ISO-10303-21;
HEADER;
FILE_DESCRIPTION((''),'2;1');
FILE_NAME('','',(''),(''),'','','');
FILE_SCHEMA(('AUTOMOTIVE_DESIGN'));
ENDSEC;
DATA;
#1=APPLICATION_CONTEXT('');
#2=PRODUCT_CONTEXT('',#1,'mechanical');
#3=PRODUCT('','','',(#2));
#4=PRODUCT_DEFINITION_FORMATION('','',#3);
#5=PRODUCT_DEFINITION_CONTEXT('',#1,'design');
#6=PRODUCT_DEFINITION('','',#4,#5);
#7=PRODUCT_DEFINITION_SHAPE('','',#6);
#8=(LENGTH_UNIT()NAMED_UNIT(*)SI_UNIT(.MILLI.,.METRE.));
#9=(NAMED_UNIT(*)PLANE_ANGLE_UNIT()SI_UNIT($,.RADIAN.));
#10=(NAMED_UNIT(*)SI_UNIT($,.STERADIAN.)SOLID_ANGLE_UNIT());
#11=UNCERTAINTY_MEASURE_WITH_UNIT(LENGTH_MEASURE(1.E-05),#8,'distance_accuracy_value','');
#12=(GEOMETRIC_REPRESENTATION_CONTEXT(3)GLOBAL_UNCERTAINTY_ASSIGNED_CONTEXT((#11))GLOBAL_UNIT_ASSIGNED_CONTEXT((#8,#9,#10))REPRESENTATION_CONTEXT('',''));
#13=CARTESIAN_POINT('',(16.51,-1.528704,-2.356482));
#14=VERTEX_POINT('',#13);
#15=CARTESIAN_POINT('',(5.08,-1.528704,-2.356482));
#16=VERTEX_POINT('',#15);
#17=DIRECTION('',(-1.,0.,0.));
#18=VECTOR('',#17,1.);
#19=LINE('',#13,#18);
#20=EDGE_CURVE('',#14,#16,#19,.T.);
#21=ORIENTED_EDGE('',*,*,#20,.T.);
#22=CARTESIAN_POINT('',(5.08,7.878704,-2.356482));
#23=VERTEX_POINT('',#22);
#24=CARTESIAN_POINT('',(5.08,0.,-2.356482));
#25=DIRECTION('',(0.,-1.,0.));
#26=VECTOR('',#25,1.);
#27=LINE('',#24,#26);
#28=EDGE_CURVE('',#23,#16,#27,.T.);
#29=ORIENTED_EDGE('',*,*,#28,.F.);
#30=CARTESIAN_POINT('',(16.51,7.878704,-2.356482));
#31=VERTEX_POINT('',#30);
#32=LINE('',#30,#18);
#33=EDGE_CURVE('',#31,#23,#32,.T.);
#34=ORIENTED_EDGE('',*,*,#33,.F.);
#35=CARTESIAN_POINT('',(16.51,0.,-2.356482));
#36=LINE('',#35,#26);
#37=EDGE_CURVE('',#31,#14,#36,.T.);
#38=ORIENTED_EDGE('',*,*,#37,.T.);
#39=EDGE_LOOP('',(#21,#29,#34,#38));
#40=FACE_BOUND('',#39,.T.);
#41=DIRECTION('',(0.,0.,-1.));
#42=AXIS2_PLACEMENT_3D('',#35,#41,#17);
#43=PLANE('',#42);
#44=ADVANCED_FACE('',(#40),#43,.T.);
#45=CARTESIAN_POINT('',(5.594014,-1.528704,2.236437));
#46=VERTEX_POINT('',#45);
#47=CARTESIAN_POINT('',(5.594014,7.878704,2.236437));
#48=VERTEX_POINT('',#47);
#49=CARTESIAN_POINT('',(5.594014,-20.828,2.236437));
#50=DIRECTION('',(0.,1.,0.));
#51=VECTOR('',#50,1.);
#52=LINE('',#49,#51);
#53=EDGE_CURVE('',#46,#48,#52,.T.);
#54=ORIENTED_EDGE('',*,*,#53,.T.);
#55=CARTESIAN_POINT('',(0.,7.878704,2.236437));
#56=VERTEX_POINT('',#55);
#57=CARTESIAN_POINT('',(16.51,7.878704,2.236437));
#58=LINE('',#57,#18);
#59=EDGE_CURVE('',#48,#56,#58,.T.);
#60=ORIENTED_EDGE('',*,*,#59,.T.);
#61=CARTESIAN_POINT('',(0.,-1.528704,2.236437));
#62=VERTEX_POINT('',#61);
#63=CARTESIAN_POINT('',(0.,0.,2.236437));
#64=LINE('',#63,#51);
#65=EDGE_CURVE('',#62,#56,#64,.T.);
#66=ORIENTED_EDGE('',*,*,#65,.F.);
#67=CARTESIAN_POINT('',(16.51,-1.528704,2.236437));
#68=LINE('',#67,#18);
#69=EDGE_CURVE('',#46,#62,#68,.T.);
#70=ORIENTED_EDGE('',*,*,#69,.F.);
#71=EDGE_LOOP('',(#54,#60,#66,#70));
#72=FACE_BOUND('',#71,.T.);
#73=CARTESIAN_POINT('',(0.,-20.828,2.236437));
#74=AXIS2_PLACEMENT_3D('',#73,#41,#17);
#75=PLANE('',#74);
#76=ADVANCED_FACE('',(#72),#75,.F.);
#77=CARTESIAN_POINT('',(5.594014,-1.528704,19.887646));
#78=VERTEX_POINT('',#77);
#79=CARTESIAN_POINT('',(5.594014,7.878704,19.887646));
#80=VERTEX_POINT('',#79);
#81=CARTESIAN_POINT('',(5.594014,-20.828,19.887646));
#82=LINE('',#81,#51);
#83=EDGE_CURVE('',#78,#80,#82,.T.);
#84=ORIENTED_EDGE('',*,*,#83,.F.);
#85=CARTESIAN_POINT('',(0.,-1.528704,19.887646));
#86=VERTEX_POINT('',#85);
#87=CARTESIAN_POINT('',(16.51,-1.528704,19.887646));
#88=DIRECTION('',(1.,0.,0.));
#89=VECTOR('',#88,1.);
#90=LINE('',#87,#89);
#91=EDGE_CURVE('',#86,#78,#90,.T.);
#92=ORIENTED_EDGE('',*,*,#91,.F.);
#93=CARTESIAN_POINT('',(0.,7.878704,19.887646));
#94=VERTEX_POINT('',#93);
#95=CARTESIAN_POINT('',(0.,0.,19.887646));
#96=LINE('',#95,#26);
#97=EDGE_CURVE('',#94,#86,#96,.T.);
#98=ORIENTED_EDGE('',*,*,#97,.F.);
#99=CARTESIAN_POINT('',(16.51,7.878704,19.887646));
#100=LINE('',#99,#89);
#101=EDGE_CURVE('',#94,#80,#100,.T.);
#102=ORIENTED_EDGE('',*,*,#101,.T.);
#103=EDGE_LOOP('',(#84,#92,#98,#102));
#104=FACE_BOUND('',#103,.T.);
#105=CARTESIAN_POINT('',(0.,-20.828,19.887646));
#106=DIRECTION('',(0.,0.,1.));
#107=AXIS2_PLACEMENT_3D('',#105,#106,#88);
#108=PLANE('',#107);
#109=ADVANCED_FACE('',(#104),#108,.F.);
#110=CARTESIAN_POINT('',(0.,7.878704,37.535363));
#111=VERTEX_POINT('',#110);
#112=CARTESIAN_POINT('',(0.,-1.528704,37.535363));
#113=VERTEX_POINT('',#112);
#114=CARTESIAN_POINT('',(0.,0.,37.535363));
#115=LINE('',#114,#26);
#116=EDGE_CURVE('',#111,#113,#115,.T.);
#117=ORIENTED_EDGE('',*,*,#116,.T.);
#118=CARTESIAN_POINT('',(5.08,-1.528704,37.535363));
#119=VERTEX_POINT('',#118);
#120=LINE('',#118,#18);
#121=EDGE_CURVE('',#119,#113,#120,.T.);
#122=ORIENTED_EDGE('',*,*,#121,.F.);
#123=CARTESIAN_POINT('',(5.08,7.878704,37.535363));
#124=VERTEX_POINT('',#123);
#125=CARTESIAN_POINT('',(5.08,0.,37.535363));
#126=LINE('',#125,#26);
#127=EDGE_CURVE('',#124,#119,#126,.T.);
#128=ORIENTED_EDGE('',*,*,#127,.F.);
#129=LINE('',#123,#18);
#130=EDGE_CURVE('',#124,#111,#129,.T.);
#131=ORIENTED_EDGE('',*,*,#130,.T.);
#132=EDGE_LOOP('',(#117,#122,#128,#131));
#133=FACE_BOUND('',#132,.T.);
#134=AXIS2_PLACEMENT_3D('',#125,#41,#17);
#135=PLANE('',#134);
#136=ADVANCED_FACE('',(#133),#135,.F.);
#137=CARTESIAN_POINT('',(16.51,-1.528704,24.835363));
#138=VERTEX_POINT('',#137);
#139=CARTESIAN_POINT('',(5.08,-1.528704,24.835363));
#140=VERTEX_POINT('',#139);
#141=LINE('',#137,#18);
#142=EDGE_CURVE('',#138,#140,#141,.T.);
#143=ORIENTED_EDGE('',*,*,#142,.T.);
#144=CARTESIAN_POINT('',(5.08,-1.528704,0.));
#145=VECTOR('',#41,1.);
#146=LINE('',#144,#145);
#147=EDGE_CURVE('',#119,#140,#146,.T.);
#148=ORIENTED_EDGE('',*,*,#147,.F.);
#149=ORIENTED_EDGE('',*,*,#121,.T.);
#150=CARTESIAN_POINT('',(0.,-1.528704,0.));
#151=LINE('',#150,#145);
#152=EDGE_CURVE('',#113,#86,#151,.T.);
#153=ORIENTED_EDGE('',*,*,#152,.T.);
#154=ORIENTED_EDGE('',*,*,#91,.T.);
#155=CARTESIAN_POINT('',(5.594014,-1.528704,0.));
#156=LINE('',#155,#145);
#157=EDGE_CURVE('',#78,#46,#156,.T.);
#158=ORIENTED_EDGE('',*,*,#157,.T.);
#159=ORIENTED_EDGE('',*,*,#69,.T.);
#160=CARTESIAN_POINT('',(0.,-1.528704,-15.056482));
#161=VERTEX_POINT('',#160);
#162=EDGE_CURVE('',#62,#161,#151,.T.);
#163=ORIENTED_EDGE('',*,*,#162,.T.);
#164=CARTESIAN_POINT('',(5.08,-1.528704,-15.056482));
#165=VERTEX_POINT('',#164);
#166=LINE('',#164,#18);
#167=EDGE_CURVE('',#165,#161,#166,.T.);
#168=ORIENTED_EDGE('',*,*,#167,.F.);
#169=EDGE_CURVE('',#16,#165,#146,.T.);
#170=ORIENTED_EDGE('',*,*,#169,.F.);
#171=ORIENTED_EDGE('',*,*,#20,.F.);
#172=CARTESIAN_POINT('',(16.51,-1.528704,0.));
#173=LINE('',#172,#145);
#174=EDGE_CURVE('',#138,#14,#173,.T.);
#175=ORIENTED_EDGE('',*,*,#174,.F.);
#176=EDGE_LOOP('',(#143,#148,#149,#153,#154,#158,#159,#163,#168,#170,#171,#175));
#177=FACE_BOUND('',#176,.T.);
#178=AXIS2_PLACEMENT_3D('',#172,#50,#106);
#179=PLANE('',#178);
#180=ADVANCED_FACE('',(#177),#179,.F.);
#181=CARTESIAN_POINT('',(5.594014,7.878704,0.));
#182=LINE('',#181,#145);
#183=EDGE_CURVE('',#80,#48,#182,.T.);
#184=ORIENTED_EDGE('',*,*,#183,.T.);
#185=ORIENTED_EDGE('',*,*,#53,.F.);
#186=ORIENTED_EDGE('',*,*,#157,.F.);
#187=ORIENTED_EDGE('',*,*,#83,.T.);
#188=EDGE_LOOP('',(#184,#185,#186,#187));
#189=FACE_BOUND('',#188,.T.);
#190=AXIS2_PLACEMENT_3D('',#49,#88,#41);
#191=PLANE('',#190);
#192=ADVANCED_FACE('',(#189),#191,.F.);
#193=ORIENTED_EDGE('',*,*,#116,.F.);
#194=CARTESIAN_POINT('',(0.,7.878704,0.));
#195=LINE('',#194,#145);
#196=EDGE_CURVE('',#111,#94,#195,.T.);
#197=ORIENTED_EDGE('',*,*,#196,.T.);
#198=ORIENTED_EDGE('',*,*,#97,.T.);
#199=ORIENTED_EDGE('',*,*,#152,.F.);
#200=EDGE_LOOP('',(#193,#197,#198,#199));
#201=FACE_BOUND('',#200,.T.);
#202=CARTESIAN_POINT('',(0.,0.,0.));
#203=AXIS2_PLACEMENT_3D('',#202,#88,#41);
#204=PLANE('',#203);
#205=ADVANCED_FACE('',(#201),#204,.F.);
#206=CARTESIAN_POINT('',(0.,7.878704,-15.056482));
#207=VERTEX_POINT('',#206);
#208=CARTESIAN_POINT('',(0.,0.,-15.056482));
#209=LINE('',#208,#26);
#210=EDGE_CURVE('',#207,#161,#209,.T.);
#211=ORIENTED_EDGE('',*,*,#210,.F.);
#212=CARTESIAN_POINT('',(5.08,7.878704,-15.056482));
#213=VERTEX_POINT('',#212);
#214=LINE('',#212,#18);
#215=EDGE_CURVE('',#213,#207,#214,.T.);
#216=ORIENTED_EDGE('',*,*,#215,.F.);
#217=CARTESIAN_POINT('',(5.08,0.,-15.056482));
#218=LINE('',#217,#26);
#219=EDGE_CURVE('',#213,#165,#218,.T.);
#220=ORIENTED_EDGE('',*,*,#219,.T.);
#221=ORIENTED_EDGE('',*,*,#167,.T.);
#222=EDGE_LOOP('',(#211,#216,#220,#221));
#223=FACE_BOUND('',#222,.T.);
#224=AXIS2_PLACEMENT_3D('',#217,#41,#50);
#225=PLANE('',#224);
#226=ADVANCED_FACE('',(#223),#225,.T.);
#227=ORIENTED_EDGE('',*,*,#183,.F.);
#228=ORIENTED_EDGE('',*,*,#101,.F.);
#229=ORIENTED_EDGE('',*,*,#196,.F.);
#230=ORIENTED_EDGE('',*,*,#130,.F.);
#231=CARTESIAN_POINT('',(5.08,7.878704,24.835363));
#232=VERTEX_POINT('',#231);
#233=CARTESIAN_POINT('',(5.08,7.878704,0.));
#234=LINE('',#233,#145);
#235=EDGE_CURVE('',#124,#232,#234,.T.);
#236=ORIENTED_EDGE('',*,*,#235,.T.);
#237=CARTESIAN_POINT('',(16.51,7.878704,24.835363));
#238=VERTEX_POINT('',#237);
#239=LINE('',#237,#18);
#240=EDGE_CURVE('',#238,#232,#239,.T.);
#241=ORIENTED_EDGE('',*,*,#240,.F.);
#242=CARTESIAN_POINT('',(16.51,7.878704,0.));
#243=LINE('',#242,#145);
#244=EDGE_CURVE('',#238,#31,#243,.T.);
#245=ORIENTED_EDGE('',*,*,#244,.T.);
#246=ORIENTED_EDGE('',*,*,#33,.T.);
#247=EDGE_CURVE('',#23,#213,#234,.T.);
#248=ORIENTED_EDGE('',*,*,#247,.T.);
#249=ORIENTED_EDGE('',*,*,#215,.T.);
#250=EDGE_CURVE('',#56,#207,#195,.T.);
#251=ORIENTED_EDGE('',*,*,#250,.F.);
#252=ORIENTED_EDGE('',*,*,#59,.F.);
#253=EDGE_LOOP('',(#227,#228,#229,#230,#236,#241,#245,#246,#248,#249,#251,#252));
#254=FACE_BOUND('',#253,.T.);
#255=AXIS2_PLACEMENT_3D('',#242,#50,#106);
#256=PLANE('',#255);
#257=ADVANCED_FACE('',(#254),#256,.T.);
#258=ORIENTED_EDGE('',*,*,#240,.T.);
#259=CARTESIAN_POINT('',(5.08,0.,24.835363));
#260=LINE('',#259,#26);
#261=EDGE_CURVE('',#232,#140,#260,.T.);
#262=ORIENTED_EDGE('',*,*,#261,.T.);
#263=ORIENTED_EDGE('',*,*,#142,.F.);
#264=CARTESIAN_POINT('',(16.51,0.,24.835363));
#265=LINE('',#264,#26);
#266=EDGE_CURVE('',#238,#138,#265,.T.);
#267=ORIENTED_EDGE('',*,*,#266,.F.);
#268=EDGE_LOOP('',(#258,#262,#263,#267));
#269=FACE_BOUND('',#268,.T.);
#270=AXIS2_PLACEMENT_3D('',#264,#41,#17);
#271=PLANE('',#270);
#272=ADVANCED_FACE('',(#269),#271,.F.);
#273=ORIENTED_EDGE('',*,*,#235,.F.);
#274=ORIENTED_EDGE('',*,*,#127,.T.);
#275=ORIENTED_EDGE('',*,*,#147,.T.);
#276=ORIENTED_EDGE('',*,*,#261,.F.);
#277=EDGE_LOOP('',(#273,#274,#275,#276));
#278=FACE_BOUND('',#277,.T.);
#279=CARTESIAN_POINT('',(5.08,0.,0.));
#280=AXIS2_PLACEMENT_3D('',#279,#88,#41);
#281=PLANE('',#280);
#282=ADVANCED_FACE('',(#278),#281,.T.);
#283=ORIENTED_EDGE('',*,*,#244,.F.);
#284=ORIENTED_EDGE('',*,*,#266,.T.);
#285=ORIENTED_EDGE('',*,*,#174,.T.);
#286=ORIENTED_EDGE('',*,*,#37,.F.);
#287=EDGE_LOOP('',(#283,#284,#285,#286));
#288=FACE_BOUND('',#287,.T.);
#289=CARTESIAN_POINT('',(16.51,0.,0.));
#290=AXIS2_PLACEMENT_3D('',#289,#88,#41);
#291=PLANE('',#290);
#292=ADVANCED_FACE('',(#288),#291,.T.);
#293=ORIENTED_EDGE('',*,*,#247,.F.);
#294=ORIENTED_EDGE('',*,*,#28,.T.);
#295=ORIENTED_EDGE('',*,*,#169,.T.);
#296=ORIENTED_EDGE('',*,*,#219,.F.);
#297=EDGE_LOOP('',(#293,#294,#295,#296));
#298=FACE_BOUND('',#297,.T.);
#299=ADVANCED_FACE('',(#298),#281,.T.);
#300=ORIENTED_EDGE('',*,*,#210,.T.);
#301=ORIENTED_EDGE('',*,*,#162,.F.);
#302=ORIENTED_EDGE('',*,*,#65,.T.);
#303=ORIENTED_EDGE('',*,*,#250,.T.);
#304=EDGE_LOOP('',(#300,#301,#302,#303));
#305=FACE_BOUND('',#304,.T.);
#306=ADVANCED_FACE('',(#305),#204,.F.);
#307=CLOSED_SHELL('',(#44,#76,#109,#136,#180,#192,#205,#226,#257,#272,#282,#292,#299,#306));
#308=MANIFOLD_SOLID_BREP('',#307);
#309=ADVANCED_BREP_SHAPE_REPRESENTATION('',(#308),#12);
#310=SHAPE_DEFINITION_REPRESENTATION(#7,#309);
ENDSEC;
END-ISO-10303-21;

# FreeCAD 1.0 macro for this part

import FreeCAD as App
import Part
import Sketcher
from FreeCAD import Vector
Q = App.Units.Quantity


def add_polygon(sketch, points):
    """Adds a closed chain of lines whose ends are joined by coincident constraints."""
    first, n = sketch.GeometryCount, len(points)
    for a, b in zip(points, points[1:] + points[:1]):
        sketch.addGeometry(Part.LineSegment(App.Vector(*a, 0), App.Vector(*b, 0)), False)
    for i in range(n):
        sketch.addConstraint(Sketcher.Constraint("Coincident", first + i, 2, first + (i + 1) % n, 1))

doc = App.newDocument("Part")
body = doc.addObject("PartDesign::Body", "Body")

sketch1 = doc.addObject("Sketcher::SketchObject", "Sketch")
body.addObject(sketch1)
sketch1.AttachmentSupport = (doc.YZ_Plane, [""])
sketch1.MapMode = "FlatFace"
add_polygon(sketch1, [(8, 25), (-2, 25), (-2, -2), (8, -2)])
sketch1.addConstraint([
    Sketcher.Constraint("Horizontal", 0),
    Sketcher.Constraint("Vertical", 1),
    Sketcher.Constraint("Horizontal", 2),
    Sketcher.Constraint("Vertical", 3),
    Sketcher.Constraint("DistanceX", 0, 2, 0, 1, 9.407407),
    Sketcher.Constraint("DistanceY", 1, 2, 1, 1, 27.191844),
    Sketcher.Constraint("DistanceY", 1, 2, -1, 1, 2.356482),
    Sketcher.Constraint("DistanceX", 0, 2, -1, 1, 1.528704),
])
pad1 = doc.addObject("PartDesign::Pad", "Pad")
body.addObject(pad1)
pad1.Profile = sketch1
pad1.Length = Q("0.65 in")

sketch2 = doc.addObject("Sketcher::SketchObject", "Sketch001")
body.addObject(sketch2)
sketch2.AttachmentSupport = (doc.YZ_Plane, [""])
sketch2.MapMode = "FlatFace"
add_polygon(sketch2, [(8, 38), (-2, 38), (-2, 25), (8, 25)])
add_polygon(sketch2, [(8, -2), (-2, -2), (-2, -15), (8, -15)])
sketch2.addConstraint([
    Sketcher.Constraint("Horizontal", 0),
    Sketcher.Constraint("Vertical", 1),
    Sketcher.Constraint("Horizontal", 2),
    Sketcher.Constraint("Vertical", 3),
    Sketcher.Constraint("Horizontal", 4),
    Sketcher.Constraint("Vertical", 5),
    Sketcher.Constraint("Horizontal", 6),
    Sketcher.Constraint("Vertical", 7),
    Sketcher.Constraint("Vertical", 1, 2, 4, 2),
    Sketcher.Constraint("Vertical", 3, 2, 6, 2),
    Sketcher.Constraint("Equal", 3, 5),
    Sketcher.Constraint("DistanceY", 1, 2, 1, 1, Q("0.5 in")),
    Sketcher.Constraint("DistanceX", 0, 2, 0, 1, 9.407407),
    Sketcher.Constraint("DistanceY", 4, 2, -1, 1, 2.356482),
    Sketcher.Constraint("DistanceX", 0, 2, -1, 1, 1.528704),
    Sketcher.Constraint("DistanceY", -1, 1, 0, 2, 37.535363),
])
pad2 = doc.addObject("PartDesign::Pad", "Pad001")
body.addObject(pad2)
pad2.Profile = sketch2
pad2.Length = Q("0.2 in")

sketch3 = doc.addObject("Sketcher::SketchObject", "Sketch002")
body.addObject(sketch3)
sketch3.AttachmentSupport = (doc.XZ_Plane, [""])
sketch3.MapMode = "FlatFace"
add_polygon(sketch3, [(0, 2), (0, 20), (6, 20), (6, 2)])
sketch3.addConstraint([
    Sketcher.Constraint("Vertical", 0),
    Sketcher.Constraint("Horizontal", 1),
    Sketcher.Constraint("Vertical", 2),
    Sketcher.Constraint("Horizontal", 3),
    Sketcher.Constraint("PointOnObject", 0, 2, -2),
    Sketcher.Constraint("DistanceY", 0, 1, 0, 2, 17.651209),
    Sketcher.Constraint("DistanceX", 1, 1, 1, 2, 5.594014),
    Sketcher.Constraint("DistanceY", -1, 1, 0, 2, 19.887646),
])
pocket1 = doc.addObject("PartDesign::Pocket", "Pocket")
body.addObject(pocket1)
pocket1.Profile = sketch3
pocket1.Type = "ThroughAll"
pocket1.Midplane = True

doc.recompute()
